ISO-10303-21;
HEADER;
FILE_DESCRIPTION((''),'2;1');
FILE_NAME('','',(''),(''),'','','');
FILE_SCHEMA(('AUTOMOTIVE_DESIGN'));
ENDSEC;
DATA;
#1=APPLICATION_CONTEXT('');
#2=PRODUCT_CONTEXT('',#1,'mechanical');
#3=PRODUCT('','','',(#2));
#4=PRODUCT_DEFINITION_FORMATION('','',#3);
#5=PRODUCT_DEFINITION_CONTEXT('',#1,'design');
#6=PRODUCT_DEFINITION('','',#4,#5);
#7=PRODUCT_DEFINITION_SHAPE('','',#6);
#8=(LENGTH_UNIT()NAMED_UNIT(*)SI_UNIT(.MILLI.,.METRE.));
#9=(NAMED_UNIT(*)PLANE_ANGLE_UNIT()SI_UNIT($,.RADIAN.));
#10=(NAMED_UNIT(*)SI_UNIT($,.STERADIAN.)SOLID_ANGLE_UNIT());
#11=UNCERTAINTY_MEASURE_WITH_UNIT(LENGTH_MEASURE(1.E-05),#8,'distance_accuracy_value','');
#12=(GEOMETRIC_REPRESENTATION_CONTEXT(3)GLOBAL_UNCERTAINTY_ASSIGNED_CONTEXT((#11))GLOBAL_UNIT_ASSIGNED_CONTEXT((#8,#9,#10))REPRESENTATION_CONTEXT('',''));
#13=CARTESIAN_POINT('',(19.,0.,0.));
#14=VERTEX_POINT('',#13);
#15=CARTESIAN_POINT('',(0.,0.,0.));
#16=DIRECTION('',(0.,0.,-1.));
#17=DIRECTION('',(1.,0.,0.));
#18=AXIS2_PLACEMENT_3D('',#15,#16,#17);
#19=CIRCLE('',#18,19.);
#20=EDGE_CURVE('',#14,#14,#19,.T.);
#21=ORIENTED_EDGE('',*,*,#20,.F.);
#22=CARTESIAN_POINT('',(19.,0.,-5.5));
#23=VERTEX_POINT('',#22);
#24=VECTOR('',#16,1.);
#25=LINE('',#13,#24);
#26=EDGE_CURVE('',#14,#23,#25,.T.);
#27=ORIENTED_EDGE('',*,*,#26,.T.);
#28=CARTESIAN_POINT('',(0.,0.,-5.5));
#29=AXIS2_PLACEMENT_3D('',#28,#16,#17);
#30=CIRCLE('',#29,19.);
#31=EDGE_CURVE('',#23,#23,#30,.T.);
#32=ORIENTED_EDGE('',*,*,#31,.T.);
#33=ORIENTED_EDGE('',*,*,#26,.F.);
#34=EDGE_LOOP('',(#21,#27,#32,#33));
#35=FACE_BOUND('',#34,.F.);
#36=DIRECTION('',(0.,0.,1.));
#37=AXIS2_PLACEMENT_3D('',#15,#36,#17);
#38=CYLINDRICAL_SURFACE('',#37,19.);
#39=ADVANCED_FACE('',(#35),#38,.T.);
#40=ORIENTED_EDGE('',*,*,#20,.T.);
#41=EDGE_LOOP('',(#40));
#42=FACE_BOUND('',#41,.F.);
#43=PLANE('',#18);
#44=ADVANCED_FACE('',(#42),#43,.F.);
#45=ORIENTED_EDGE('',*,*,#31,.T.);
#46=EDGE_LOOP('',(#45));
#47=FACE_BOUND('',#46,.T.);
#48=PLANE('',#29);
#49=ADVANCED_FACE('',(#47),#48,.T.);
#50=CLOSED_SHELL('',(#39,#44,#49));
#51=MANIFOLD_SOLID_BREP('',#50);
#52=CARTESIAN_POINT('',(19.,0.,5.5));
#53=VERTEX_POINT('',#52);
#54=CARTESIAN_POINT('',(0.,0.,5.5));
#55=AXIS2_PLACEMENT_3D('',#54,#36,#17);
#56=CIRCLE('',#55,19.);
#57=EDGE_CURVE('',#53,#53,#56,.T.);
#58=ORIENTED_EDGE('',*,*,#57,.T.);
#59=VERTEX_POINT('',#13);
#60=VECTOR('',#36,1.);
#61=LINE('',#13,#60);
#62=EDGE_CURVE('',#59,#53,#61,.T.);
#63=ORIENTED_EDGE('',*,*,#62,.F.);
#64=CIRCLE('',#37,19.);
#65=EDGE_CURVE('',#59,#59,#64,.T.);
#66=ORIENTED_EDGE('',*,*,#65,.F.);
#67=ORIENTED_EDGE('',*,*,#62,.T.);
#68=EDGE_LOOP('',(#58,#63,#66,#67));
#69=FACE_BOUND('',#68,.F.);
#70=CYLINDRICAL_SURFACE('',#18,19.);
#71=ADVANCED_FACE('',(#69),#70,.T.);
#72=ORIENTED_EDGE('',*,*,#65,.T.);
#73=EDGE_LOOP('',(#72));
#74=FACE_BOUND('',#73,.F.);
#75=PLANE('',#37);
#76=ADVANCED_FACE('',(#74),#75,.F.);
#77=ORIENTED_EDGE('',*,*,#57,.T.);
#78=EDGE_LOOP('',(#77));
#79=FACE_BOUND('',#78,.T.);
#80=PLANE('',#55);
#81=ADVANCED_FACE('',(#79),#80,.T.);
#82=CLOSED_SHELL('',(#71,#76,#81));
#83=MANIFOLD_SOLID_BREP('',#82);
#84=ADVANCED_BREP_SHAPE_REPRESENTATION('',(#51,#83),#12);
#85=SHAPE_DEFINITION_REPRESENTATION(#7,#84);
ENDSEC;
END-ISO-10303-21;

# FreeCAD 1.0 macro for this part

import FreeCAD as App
import Part
import Sketcher
from FreeCAD import Vector
Q = App.Units.Quantity

doc = App.newDocument("Part")
body = doc.addObject("PartDesign::Body", "Body")

sketch1 = doc.addObject("Sketcher::SketchObject", "Sketch")
body.addObject(sketch1)
sketch1.AttachmentSupport = (doc.XY_Plane, [""])
sketch1.MapMode = "FlatFace"
sketch1.addGeometry(Part.Circle(Vector(0, 0, 0), Vector(0, 0, 1), 19), False)
sketch1.addConstraint([
    Sketcher.Constraint("Coincident", 0, 3, -1, 1),
    Sketcher.Constraint("Diameter", 0, Q("38 mm")),
])
pad1 = doc.addObject("PartDesign::Pad", "Pad")
body.addObject(pad1)
pad1.Profile = sketch1
pad1.Length = 5.5
body2 = doc.addObject("PartDesign::Body", "Body001")

sketch2 = doc.addObject("Sketcher::SketchObject", "Sketch001")
body2.addObject(sketch2)
sketch2.AttachmentSupport = (doc.getObject("XY_Plane001"), [""])
sketch2.MapMode = "FlatFace"
sketch2.addGeometry(Part.Circle(Vector(0, 0, 0), Vector(0, 0, 1), 19), False)
sketch2.addConstraint([
    Sketcher.Constraint("Coincident", 0, 3, -1, 1),
    Sketcher.Constraint("Diameter", 0, Q("38 mm")),
])
pad2 = doc.addObject("PartDesign::Pad", "Pad001")
body2.addObject(pad2)
pad2.Profile = sketch2
pad2.Length = 5.5
pad2.Reversed = True

doc.recompute()
